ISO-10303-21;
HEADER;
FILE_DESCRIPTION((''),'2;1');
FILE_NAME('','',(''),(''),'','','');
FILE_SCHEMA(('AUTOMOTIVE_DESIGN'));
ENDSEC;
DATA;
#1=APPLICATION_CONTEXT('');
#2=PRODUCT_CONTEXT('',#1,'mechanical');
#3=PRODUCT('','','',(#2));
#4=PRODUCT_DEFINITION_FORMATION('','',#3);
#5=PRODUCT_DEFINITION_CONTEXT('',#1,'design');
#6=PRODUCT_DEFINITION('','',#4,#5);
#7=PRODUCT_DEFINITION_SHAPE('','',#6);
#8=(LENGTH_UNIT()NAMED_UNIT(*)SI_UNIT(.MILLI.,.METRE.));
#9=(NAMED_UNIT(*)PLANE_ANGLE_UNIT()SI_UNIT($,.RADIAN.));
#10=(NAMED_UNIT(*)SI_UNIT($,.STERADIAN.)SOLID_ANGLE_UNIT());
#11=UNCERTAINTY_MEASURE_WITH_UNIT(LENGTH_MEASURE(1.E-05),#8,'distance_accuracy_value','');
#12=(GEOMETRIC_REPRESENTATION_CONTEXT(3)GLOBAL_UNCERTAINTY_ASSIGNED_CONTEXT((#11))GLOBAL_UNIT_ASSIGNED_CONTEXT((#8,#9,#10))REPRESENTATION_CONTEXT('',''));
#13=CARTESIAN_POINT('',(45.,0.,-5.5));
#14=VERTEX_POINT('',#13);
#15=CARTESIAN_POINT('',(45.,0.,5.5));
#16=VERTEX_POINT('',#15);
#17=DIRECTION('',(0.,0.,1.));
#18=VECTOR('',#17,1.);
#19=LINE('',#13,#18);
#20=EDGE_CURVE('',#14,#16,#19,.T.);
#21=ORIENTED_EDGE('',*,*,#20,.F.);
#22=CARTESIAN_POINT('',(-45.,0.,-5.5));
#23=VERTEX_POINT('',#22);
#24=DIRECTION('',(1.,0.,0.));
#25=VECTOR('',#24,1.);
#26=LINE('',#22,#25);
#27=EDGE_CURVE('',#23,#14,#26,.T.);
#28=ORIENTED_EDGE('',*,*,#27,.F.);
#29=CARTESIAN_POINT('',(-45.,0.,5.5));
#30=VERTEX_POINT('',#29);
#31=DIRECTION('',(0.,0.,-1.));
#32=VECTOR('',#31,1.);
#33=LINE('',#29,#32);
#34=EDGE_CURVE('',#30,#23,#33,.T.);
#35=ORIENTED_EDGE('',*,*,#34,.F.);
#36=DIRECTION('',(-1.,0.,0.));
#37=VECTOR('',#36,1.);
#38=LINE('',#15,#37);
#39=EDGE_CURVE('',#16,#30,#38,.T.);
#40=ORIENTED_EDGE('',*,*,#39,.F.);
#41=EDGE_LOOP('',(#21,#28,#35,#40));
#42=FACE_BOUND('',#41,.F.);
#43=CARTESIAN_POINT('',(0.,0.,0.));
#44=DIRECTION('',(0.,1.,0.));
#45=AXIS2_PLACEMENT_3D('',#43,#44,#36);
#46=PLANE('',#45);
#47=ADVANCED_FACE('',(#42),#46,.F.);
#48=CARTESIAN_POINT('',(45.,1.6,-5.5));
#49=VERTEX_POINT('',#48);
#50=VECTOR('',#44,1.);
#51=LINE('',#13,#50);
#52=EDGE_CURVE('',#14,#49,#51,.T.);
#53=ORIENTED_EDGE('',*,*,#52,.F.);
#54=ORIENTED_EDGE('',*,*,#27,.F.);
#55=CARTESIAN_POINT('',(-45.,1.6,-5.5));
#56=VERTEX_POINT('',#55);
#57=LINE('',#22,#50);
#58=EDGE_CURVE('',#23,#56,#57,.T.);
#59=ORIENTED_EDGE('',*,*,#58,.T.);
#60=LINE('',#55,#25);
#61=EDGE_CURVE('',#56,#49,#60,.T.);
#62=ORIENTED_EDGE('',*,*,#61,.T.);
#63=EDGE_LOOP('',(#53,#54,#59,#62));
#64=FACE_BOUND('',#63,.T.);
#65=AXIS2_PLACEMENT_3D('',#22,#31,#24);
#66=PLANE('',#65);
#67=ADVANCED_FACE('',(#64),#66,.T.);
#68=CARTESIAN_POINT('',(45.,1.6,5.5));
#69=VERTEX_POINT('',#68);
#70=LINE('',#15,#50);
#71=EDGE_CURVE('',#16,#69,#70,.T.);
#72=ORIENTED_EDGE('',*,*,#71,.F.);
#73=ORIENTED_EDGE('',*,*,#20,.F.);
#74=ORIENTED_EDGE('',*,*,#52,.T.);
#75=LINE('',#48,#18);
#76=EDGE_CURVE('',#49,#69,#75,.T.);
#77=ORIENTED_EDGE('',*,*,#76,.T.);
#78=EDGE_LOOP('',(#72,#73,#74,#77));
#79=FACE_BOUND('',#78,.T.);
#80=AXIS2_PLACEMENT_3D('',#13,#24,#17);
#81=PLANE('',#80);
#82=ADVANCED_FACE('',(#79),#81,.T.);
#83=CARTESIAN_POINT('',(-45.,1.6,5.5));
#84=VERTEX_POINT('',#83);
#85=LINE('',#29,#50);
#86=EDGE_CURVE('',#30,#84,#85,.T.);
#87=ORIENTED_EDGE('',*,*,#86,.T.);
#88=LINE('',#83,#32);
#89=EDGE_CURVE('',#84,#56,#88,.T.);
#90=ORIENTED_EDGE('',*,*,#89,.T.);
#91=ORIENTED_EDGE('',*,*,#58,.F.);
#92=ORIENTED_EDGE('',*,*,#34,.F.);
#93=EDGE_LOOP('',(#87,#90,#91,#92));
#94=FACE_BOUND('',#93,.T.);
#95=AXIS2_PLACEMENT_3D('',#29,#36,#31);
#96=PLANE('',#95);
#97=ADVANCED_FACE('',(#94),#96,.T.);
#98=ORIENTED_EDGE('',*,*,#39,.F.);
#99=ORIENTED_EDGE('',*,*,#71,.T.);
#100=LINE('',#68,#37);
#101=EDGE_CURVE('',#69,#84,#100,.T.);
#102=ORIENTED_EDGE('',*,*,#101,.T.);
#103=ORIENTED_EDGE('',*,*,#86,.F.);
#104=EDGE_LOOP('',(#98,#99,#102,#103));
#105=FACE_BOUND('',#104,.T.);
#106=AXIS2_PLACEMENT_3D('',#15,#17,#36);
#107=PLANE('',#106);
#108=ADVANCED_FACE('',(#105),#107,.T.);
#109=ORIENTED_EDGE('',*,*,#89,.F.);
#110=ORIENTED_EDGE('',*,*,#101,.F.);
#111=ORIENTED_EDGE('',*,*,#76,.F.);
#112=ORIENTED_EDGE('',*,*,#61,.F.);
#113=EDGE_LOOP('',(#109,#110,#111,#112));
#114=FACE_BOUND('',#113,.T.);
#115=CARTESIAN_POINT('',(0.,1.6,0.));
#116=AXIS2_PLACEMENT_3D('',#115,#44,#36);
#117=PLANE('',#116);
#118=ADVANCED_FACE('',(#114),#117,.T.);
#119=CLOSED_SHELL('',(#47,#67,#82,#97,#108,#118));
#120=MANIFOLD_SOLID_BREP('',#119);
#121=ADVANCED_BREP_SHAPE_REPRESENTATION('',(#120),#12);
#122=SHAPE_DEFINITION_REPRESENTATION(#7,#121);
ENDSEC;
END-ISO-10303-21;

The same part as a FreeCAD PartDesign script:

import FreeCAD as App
import Part
import Sketcher
from FreeCAD import Vector

doc = App.newDocument("Part")
body = doc.addObject("PartDesign::Body", "Body")

sketch1 = body.newObject("Sketcher::SketchObject", "Sketch")
sketch1.AttachmentSupport = (doc.getObject("XZ_Plane"), [""])
sketch1.MapMode = "FlatFace"
sketch1.addGeometry([
    Part.LineSegment(Vector(-45, 5.5, 0), Vector(45, 5.5, 0)),
    Part.LineSegment(Vector(45, 5.5, 0), Vector(45, -5.5, 0)),
    Part.LineSegment(Vector(45, -5.5, 0), Vector(-45, -5.5, 0)),
    Part.LineSegment(Vector(-45, -5.5, 0), Vector(-45, 5.5, 0)),
], False)
sketch1.addConstraint([
    Sketcher.Constraint("Coincident", 0, 2, 1, 1),
    Sketcher.Constraint("Coincident", 1, 2, 2, 1),
    Sketcher.Constraint("Coincident", 2, 2, 3, 1),
    Sketcher.Constraint("Coincident", 3, 2, 0, 1),
    Sketcher.Constraint("Horizontal", 0),
    Sketcher.Constraint("Vertical", 1),
    Sketcher.Constraint("Horizontal", 2),
    Sketcher.Constraint("Vertical", 3),
    Sketcher.Constraint("Symmetric", 0, 2, 2, 2, -1, 1),
    Sketcher.Constraint("DistanceX", 0, 1, 0, 2, 90.0),
    Sketcher.Constraint("DistanceY", 1, 2, 1, 1, 11.0),
])
pad1 = body.newObject("PartDesign::Pad", "Pad")
pad1.Profile = sketch1
pad1.Length = 1.6
pad1.Reversed = True

doc.recompute()
